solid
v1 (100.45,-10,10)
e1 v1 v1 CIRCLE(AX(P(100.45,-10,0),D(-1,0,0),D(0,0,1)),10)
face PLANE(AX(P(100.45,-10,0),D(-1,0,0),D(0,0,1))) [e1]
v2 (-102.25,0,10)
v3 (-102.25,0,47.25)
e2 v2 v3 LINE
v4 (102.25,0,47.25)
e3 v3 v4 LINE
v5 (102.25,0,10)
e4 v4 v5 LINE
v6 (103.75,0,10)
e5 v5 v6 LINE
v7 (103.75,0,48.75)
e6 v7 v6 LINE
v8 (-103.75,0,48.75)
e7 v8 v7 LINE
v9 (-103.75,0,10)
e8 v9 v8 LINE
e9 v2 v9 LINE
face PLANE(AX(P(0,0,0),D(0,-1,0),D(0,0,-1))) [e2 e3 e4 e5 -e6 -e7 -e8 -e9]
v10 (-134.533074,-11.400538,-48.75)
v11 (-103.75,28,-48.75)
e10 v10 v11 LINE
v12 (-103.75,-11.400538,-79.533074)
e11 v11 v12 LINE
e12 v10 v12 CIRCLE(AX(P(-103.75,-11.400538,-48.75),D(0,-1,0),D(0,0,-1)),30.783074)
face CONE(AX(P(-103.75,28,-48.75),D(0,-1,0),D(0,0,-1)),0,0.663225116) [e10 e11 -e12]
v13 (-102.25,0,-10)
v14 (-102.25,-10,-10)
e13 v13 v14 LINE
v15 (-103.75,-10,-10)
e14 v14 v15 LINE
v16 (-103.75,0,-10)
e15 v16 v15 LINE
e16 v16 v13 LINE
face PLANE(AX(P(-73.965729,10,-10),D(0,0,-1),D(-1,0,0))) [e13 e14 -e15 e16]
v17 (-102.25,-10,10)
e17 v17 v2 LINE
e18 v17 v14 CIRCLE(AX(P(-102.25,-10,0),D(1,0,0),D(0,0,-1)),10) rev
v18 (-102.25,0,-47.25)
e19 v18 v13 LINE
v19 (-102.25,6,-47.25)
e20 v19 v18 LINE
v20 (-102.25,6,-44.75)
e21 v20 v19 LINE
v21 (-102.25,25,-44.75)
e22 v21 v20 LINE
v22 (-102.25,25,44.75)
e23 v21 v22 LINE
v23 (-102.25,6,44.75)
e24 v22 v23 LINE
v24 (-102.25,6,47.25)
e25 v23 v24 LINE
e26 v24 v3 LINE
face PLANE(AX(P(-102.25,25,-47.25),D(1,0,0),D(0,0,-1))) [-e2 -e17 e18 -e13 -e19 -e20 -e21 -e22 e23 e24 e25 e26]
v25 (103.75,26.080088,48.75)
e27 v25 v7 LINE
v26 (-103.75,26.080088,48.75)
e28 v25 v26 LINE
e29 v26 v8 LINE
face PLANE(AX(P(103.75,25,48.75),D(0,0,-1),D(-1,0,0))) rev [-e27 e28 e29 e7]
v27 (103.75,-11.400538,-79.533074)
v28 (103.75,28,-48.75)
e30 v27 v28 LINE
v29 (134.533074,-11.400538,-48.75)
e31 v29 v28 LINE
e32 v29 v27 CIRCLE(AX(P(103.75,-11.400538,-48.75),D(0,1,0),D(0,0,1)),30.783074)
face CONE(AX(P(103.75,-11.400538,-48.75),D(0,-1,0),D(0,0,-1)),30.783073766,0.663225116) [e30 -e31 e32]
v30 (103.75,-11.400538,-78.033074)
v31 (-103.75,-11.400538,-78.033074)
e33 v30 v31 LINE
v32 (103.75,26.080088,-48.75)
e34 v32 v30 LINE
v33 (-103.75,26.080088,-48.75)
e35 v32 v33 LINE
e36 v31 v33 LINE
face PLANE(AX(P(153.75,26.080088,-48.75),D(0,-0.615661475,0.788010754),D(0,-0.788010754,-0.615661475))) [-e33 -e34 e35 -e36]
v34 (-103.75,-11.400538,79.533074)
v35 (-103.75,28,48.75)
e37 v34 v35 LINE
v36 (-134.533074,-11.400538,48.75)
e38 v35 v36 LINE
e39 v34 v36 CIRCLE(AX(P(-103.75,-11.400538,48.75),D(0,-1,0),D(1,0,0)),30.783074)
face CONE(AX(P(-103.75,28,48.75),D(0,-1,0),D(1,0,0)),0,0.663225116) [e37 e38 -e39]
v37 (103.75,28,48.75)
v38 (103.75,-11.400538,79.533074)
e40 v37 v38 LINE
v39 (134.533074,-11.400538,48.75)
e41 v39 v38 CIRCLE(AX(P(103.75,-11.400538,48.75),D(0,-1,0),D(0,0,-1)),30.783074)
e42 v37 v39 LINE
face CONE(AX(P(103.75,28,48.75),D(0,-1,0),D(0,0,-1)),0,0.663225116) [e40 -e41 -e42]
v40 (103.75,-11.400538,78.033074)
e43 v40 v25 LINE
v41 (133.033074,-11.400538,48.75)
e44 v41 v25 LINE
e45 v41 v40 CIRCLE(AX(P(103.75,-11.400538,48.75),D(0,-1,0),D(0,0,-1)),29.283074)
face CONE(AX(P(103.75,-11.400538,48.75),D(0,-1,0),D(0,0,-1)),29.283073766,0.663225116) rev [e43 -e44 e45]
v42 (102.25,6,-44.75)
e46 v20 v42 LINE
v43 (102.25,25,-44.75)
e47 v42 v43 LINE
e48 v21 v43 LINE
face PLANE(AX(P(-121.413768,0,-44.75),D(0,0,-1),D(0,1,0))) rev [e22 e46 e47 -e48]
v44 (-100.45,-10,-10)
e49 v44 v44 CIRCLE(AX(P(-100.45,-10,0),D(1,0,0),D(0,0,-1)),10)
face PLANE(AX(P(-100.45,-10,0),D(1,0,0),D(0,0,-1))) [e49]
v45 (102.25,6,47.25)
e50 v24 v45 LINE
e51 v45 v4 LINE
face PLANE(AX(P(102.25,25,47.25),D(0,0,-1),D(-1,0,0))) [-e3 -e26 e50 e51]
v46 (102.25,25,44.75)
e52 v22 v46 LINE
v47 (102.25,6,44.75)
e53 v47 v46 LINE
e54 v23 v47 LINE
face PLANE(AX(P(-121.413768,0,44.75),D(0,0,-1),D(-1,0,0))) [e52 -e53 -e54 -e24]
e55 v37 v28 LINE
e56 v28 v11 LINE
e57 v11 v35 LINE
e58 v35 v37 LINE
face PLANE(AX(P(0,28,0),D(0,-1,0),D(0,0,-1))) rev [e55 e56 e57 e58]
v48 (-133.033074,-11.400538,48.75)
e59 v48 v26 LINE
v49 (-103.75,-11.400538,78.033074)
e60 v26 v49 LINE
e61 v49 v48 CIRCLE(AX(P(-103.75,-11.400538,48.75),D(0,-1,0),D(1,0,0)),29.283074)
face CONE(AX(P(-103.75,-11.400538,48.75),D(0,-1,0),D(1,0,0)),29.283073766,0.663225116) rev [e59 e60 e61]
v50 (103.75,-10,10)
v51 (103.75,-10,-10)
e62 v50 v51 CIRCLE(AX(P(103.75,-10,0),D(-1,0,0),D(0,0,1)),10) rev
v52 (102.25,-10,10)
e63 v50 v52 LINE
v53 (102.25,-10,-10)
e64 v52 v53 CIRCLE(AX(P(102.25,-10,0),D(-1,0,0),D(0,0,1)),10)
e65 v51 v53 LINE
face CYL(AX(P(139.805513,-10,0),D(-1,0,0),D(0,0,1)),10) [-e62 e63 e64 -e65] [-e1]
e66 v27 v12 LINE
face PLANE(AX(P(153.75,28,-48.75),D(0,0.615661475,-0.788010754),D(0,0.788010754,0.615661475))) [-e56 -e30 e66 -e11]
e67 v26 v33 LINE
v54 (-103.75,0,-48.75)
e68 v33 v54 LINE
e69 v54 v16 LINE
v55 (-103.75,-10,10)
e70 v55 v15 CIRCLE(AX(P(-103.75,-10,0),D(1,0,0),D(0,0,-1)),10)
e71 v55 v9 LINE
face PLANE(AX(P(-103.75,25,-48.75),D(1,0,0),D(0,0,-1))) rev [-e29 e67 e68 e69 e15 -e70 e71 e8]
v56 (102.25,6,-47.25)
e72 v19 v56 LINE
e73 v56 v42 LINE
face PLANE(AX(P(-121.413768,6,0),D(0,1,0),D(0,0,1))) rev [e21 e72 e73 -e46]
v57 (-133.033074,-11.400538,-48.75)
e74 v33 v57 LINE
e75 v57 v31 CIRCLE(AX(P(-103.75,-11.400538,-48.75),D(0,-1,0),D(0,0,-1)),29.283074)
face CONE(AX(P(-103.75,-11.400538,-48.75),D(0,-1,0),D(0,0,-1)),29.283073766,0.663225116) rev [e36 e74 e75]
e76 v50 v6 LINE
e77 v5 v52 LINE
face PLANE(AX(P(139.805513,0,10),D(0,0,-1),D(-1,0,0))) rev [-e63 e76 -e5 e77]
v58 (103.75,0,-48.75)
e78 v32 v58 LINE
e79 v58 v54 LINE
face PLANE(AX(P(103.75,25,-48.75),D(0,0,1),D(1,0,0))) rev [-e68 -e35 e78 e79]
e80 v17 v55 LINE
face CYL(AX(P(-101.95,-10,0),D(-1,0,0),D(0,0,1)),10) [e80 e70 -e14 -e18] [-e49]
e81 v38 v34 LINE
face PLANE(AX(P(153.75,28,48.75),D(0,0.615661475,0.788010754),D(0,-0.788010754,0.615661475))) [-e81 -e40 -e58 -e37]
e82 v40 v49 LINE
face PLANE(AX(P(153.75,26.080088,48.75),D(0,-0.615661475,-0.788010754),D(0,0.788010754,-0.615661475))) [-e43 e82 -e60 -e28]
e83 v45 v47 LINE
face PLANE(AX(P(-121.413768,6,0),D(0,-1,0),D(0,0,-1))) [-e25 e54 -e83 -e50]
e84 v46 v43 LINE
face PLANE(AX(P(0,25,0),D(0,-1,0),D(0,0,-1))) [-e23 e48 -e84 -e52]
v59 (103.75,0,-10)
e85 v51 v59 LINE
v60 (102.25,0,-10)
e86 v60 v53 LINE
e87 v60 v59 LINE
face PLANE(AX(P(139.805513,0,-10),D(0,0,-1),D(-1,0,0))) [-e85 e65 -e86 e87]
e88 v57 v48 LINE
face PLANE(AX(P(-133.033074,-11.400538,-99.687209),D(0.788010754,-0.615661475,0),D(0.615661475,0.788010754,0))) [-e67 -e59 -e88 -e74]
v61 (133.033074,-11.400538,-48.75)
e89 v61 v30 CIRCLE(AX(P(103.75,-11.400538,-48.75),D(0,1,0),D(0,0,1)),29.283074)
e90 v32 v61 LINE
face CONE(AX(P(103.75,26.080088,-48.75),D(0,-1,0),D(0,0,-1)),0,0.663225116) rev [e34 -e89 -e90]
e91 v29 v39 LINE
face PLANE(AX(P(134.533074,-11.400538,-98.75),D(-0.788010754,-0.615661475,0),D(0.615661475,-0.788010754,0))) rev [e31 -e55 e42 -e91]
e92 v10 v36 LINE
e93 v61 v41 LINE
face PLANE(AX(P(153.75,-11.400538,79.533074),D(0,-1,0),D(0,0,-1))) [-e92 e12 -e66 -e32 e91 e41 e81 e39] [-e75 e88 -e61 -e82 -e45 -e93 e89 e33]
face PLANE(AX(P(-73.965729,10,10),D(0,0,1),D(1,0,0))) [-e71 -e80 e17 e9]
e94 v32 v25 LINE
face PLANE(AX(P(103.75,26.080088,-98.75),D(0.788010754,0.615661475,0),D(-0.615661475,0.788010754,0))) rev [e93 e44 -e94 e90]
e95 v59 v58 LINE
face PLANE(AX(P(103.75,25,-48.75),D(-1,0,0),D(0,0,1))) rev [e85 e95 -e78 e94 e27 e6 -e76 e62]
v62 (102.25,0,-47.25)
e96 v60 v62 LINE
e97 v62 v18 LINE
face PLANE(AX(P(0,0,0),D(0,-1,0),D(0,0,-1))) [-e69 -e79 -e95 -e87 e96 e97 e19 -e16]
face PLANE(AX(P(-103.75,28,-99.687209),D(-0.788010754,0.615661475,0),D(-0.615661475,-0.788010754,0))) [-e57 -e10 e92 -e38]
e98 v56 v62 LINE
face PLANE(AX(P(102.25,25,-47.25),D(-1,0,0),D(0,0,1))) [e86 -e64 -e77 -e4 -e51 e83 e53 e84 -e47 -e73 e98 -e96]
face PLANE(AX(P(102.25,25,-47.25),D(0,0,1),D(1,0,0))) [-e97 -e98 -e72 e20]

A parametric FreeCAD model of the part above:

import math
import FreeCAD as App
import Part
import Sketcher

V = App.Vector
Q = App.Units.Quantity

doc = App.newDocument("Part")
params = doc.addObject("Spreadsheet::Sheet", "Params")
for row, (alias, value) in enumerate([
    ("sketch1_width", "207.5 mm"),
    ("sketch1_width2", "204.5 mm"),
    ("sketch1_height", "97.5 mm"),
    ("sketch1_height2", "94.5 mm"),
    ("pad1_length", "25 mm"),
    ("sketch2_width", "207.5 mm"),
    ("sketch2_height", "97.5 mm"),
    ("pad2_length", "3 mm"),
    ("sketch3_length", "50 mm"),
    ("sketch3_height", "1.5 mm"),
    ("pad3_length", "207.5 mm"),
    ("sketch4_length", "50 mm"),
    ("sketch4_width", "1.5 mm"),
    ("pad4_length", "97.5 mm"),
    ("sketch5_length", "50 mm"),
    ("sketch5_width", "1.5 mm"),
    ("revolution_angle", "90 deg"),
    ("sketch6_length", "50 mm"),
    ("sketch6_height", "1.5 mm"),
    ("revolution2_angle", "90 deg"),
    ("sketch7_length", "50 mm"),
    ("sketch7_height", "1.5 mm"),
    ("revolution3_angle", "90 deg"),
    ("sketch8_length", "50 mm"),
    ("sketch8_height", "1.5 mm"),
    ("revolution4_angle", "90 deg"),
    ("sketch9_length", "50 mm"),
    ("sketch9_width", "1.5 mm"),
    ("pad5_length", "97.5 mm"),
    ("sketch10_width", "19 mm"),
    ("sketch10_height", "2.5 mm"),
    ("pad6_length", "204.5 mm"),
    ("sketch11_width", "19 mm"),
    ("sketch11_height", "2.5 mm"),
    ("pad7_length", "204.5 mm"),
    ("sketch12_diameter", "20 mm"),
    ("pad8_length", "0.3 mm"),
    ("sketch13_diameter", "20 mm"),
    ("pad9_length", "1.5 mm"),
    ("sketch14_width", "20 mm"),
    ("pad10_length", "1.5 mm"),
    ("sketch15_radius", "10 mm"),
    ("pad11_length", "1.5 mm"),
    ("sketch16_diameter", "20 mm"),
    ("pad12_length", "0.3 mm"),
    ("sketch17_diameter", "20 mm"),
    ("pad13_length", "1.5 mm"),
    ("sketch18_diameter", "20 mm"),
    ("pad14_length", "1.5 mm"),
], start=1):
    params.set(f"A{row}", alias)
    params.set(f"B{row}", "=" + value)
    params.setAlias(f"B{row}", alias)

body = doc.addObject("PartDesign::Body", "Body")

sketch1 = doc.addObject("Sketcher::SketchObject", "Sketch")
body.addObject(sketch1)
sketch1.AttachmentSupport = (doc.XZ_Plane, [""])
sketch1.MapMode = "FlatFace"
sketch1.addGeometry([
    Part.LineSegment(V(-104, -49, 0), V(-104, 49, 0)),
    Part.LineSegment(V(-104, 49, 0), V(104, 49, 0)),
    Part.LineSegment(V(104, 49, 0), V(104, -49, 0)),
    Part.LineSegment(V(104, -49, 0), V(-104, -49, 0)),
    Part.LineSegment(V(102, 47, 0), V(-102, 47, 0)),
    Part.LineSegment(V(-102, 47, 0), V(-102, -47, 0)),
    Part.LineSegment(V(-102, -47, 0), V(102, -47, 0)),
    Part.LineSegment(V(102, -47, 0), V(102, 47, 0)),
], False)
sketch1.addConstraint([
    Sketcher.Constraint("Coincident", 0, 2, 1, 1),
    Sketcher.Constraint("Coincident", 1, 2, 2, 1),
    Sketcher.Constraint("Coincident", 2, 2, 3, 1),
    Sketcher.Constraint("Coincident", 3, 2, 0, 1),
    Sketcher.Constraint("Coincident", 4, 2, 5, 1),
    Sketcher.Constraint("Coincident", 5, 2, 6, 1),
    Sketcher.Constraint("Coincident", 6, 2, 7, 1),
    Sketcher.Constraint("Coincident", 7, 2, 4, 1),
    Sketcher.Constraint("Vertical", 0),
    Sketcher.Constraint("Horizontal", 1),
    Sketcher.Constraint("Vertical", 2),
    Sketcher.Constraint("Horizontal", 3),
    Sketcher.Constraint("Horizontal", 4),
    Sketcher.Constraint("Vertical", 5),
    Sketcher.Constraint("Horizontal", 6),
    Sketcher.Constraint("Vertical", 7),
    Sketcher.Constraint("Symmetric", 0, 2, 2, 2, -1, 1),
    Sketcher.Constraint("Symmetric", 4, 2, 6, 2, -1, 1),
    Sketcher.Constraint("DistanceX", 1, 1, 1, 2, Q("207.5 mm")),
    Sketcher.Constraint("DistanceX", 4, 2, 4, 1, Q("204.5 mm")),
    Sketcher.Constraint("DistanceY", 0, 1, 0, 2, Q("97.5 mm")),
    Sketcher.Constraint("DistanceY", 5, 2, 5, 1, Q("94.5 mm")),
])
sketch1.setExpression("Constraints[18]", "Params.sketch1_width")
sketch1.setExpression("Constraints[19]", "Params.sketch1_width2")
sketch1.setExpression("Constraints[20]", "Params.sketch1_height")
sketch1.setExpression("Constraints[21]", "Params.sketch1_height2")
pad1 = doc.addObject("PartDesign::Pad", "Pad")
body.addObject(pad1)
pad1.Profile = sketch1
pad1.setExpression("Length", "Params.pad1_length")
pad1.Reversed = True

sketch2 = doc.addObject("Sketcher::SketchObject", "Sketch001")
body.addObject(sketch2)
sketch2.AttachmentSupport = (doc.XZ_Plane, [""])
sketch2.MapMode = "FlatFace"
sketch2.AttachmentOffset = App.Placement(V(0, 0, -25), App.Rotation())
sketch2.addGeometry([
    Part.LineSegment(V(-104, -49, 0), V(-104, 49, 0)),
    Part.LineSegment(V(-104, 49, 0), V(104, 49, 0)),
    Part.LineSegment(V(104, 49, 0), V(104, -49, 0)),
    Part.LineSegment(V(104, -49, 0), V(-104, -49, 0)),
], False)
sketch2.addConstraint([
    Sketcher.Constraint("Coincident", 0, 2, 1, 1),
    Sketcher.Constraint("Coincident", 1, 2, 2, 1),
    Sketcher.Constraint("Coincident", 2, 2, 3, 1),
    Sketcher.Constraint("Coincident", 3, 2, 0, 1),
    Sketcher.Constraint("Vertical", 0),
    Sketcher.Constraint("Horizontal", 1),
    Sketcher.Constraint("Vertical", 2),
    Sketcher.Constraint("Horizontal", 3),
    Sketcher.Constraint("Symmetric", 0, 2, 2, 2, -1, 1),
    Sketcher.Constraint("DistanceX", 1, 1, 1, 2, Q("207.5 mm")),
    Sketcher.Constraint("DistanceY", 0, 1, 0, 2, Q("97.5 mm")),
])
sketch2.setExpression("Constraints[9]", "Params.sketch2_width")
sketch2.setExpression("Constraints[10]", "Params.sketch2_height")
pad2 = doc.addObject("PartDesign::Pad", "Pad001")
body.addObject(pad2)
pad2.Profile = sketch2
pad2.setExpression("Length", "Params.pad2_length")
pad2.Reversed = True

sketch3 = doc.addObject("Sketcher::SketchObject", "Sketch002")
body.addObject(sketch3)
sketch3.AttachmentSupport = (doc.YZ_Plane, [""])
sketch3.MapMode = "FlatFace"
sketch3.AttachmentOffset = App.Placement(V(0, 0, -103.75), App.Rotation())
sketch3.addGeometry([
    Part.LineSegment(V(-11.4, 79.5, 0), V(28, 48.8, 0)),
    Part.LineSegment(V(28, 48.8, 0), V(26.1, 48.8, 0)),
    Part.LineSegment(V(26.1, 48.8, 0), V(-11.4, 78, 0)),
    Part.LineSegment(V(-11.4, 78, 0), V(-11.4, 79.5, 0)),
    Part.LineSegment(V(28, -48.8, 0), V(-11.4, -79.5, 0)),
    Part.LineSegment(V(-11.4, -79.5, 0), V(-11.4, -78, 0)),
    Part.LineSegment(V(-11.4, -78, 0), V(26.1, -48.8, 0)),
    Part.LineSegment(V(26.1, -48.8, 0), V(28, -48.8, 0)),
], False)
sketch3.addConstraint([
    Sketcher.Constraint("Coincident", 0, 2, 1, 1),
    Sketcher.Constraint("Coincident", 1, 2, 2, 1),
    Sketcher.Constraint("Coincident", 2, 2, 3, 1),
    Sketcher.Constraint("Coincident", 3, 2, 0, 1),
    Sketcher.Constraint("Coincident", 4, 2, 5, 1),
    Sketcher.Constraint("Coincident", 5, 2, 6, 1),
    Sketcher.Constraint("Coincident", 6, 2, 7, 1),
    Sketcher.Constraint("Coincident", 7, 2, 4, 1),
    Sketcher.Constraint("Horizontal", 1),
    Sketcher.Constraint("Vertical", 3),
    Sketcher.Constraint("Vertical", 5),
    Sketcher.Constraint("Horizontal", 7),
    Sketcher.Constraint("Symmetric", 3, 2, 4, 2, -1),
    Sketcher.Constraint("Symmetric", 1, 2, 6, 2, -1),
    Sketcher.Constraint("Parallel", 0, 2),
    Sketcher.Constraint("Parallel", 4, 6),
    Sketcher.Constraint("Vertical", 0, 2, 7, 2),
    Sketcher.Constraint("Angle", 0, Q("-38 deg")),
    Sketcher.Constraint("Distance", 0, Q("50 mm")),
    Sketcher.Constraint("DistanceY", 3, 1, 3, 2, Q("1.5 mm")),
    Sketcher.Constraint("DistanceX", -1, 1, 0, 2, Q("28 mm")),
    Sketcher.Constraint("DistanceY", 6, 2, 1, 2, Q("97.5 mm")),
])
sketch3.setExpression("Constraints[18]", "Params.sketch3_length")
sketch3.setExpression("Constraints[19]", "Params.sketch3_height")
pad3 = doc.addObject("PartDesign::Pad", "Pad002")
body.addObject(pad3)
pad3.Profile = sketch3
pad3.setExpression("Length", "Params.pad3_length")

sketch4 = doc.addObject("Sketcher::SketchObject", "Sketch003")
body.addObject(sketch4)
sketch4.AttachmentSupport = (doc.XY_Plane, [""])
sketch4.MapMode = "FlatFace"
sketch4.AttachmentOffset = App.Placement(V(0, 0, 48.75), App.Rotation())
sketch4.addGeometry([
    Part.LineSegment(V(-103.8, 28, 0), V(-134.5, -11.4, 0)),
    Part.LineSegment(V(-134.5, -11.4, 0), V(-133, -11.4, 0)),
    Part.LineSegment(V(-133, -11.4, 0), V(-102.2, 28, 0)),
    Part.LineSegment(V(-102.2, 28, 0), V(-103.8, 28, 0)),
], False)
sketch4.addConstraint([
    Sketcher.Constraint("Coincident", 0, 2, 1, 1),
    Sketcher.Constraint("Coincident", 1, 2, 2, 1),
    Sketcher.Constraint("Coincident", 2, 2, 3, 1),
    Sketcher.Constraint("Coincident", 3, 2, 0, 1),
    Sketcher.Constraint("Horizontal", 1),
    Sketcher.Constraint("Horizontal", 3),
    Sketcher.Constraint("Parallel", 0, 2),
    Sketcher.Constraint("Angle", 0, Q("-128 deg")),
    Sketcher.Constraint("Distance", 0, Q("50 mm")),
    Sketcher.Constraint("DistanceX", 1, 1, 1, 2, Q("1.5 mm")),
    Sketcher.Constraint("DistanceY", -1, 1, 2, 2, Q("28 mm")),
    Sketcher.Constraint("DistanceX", 2, 2, -1, 1, Q("102.25 mm")),
])
sketch4.setExpression("Constraints[8]", "Params.sketch4_length")
sketch4.setExpression("Constraints[9]", "Params.sketch4_width")
pad4 = doc.addObject("PartDesign::Pad", "Pad003")
body.addObject(pad4)
pad4.Profile = sketch4
pad4.setExpression("Length", "Params.pad4_length")
pad4.Reversed = True

sketch5 = doc.addObject("Sketcher::SketchObject", "Sketch004")
body.addObject(sketch5)
sketch5.AttachmentSupport = (doc.XY_Plane, [""])
sketch5.MapMode = "FlatFace"
sketch5.AttachmentOffset = App.Placement(V(0, 0, 48.75), App.Rotation())
sketch5.addGeometry([
    Part.LineSegment(V(-103.8, 28, 0), V(-134.5, -11.4, 0)),
    Part.LineSegment(V(-134.5, -11.4, 0), V(-133, -11.4, 0)),
    Part.LineSegment(V(-133, -11.4, 0), V(-103.8, 26.1, 0)),
    Part.LineSegment(V(-103.8, 26.1, 0), V(-103.8, 28, 0)),
], False)
sketch5.addGeometry(Part.LineSegment(V(-103.8, -11.4, 0), V(-103.8, 28, 0)), True)
sketch5.addConstraint([
    Sketcher.Constraint("Coincident", 0, 2, 1, 1),
    Sketcher.Constraint("Coincident", 1, 2, 2, 1),
    Sketcher.Constraint("Coincident", 2, 2, 3, 1),
    Sketcher.Constraint("Coincident", 3, 2, 0, 1),
    Sketcher.Constraint("Horizontal", 1),
    Sketcher.Constraint("Vertical", 3),
    Sketcher.Constraint("Vertical", 4),
    Sketcher.Constraint("Coincident", 4, 2, 3, 2),
    Sketcher.Constraint("Parallel", 0, 2),
    Sketcher.Constraint("Horizontal", 1, 2, 4, 1),
    Sketcher.Constraint("Angle", 0, Q("-128 deg")),
    Sketcher.Constraint("Distance", 0, Q("50 mm")),
    Sketcher.Constraint("DistanceX", 1, 1, 1, 2, Q("1.5 mm")),
    Sketcher.Constraint("DistanceY", -1, 1, 3, 2, Q("28 mm")),
    Sketcher.Constraint("DistanceX", 2, 2, -1, 1, Q("103.75 mm")),
])
sketch5.setExpression("Constraints[11]", "Params.sketch5_length")
sketch5.setExpression("Constraints[12]", "Params.sketch5_width")
revolution = doc.addObject("PartDesign::Revolution", "Revolution")
body.addObject(revolution)
revolution.Profile = sketch5
revolution.ReferenceAxis = (sketch5, ["Axis0"])
revolution.setExpression("Angle", "Params.revolution_angle")

sketch6 = doc.addObject("Sketcher::SketchObject", "Sketch005")
body.addObject(sketch6)
sketch6.AttachmentSupport = (doc.YZ_Plane, [""])
sketch6.MapMode = "FlatFace"
sketch6.AttachmentOffset = App.Placement(V(0, 0, -103.75), App.Rotation())
sketch6.addGeometry([
    Part.LineSegment(V(28, -48.8, 0), V(-11.4, -79.5, 0)),
    Part.LineSegment(V(-11.4, -79.5, 0), V(-11.4, -78, 0)),
    Part.LineSegment(V(-11.4, -78, 0), V(26.1, -48.8, 0)),
    Part.LineSegment(V(26.1, -48.8, 0), V(28, -48.8, 0)),
], False)
sketch6.addGeometry(Part.LineSegment(V(-11.4, -48.8, 0), V(28, -48.8, 0)), True)
sketch6.addConstraint([
    Sketcher.Constraint("Coincident", 0, 2, 1, 1),
    Sketcher.Constraint("Coincident", 1, 2, 2, 1),
    Sketcher.Constraint("Coincident", 2, 2, 3, 1),
    Sketcher.Constraint("Coincident", 3, 2, 0, 1),
    Sketcher.Constraint("Vertical", 1),
    Sketcher.Constraint("Horizontal", 3),
    Sketcher.Constraint("Horizontal", 4),
    Sketcher.Constraint("Coincident", 4, 2, 3, 2),
    Sketcher.Constraint("Parallel", 0, 2),
    Sketcher.Constraint("Vertical", 1, 2, 4, 1),
    Sketcher.Constraint("Angle", 0, Q("-142 deg")),
    Sketcher.Constraint("Distance", 0, Q("50 mm")),
    Sketcher.Constraint("DistanceY", 1, 1, 1, 2, Q("1.5 mm")),
    Sketcher.Constraint("DistanceX", -1, 1, 3, 2, Q("28 mm")),
    Sketcher.Constraint("DistanceY", 2, 2, -1, 1, Q("48.75 mm")),
])
sketch6.setExpression("Constraints[11]", "Params.sketch6_length")
sketch6.setExpression("Constraints[12]", "Params.sketch6_height")
revolution2 = doc.addObject("PartDesign::Revolution", "Revolution001")
body.addObject(revolution2)
revolution2.Profile = sketch6
revolution2.ReferenceAxis = (sketch6, ["Axis0"])
revolution2.setExpression("Angle", "Params.revolution2_angle")

sketch7 = doc.addObject("Sketcher::SketchObject", "Sketch006")
body.addObject(sketch7)
sketch7.AttachmentSupport = (doc.YZ_Plane, [""])
sketch7.MapMode = "FlatFace"
sketch7.AttachmentOffset = App.Placement(V(0, 0, 103.75), App.Rotation())
sketch7.addGeometry([
    Part.LineSegment(V(28, -48.8, 0), V(26.1, -48.8, 0)),
    Part.LineSegment(V(26.1, -48.8, 0), V(-11.4, -78, 0)),
    Part.LineSegment(V(-11.4, -78, 0), V(-11.4, -79.5, 0)),
    Part.LineSegment(V(-11.4, -79.5, 0), V(28, -48.8, 0)),
], False)
sketch7.addGeometry(Part.LineSegment(V(28, -48.8, 0), V(-11.4, -48.8, 0)), True)
sketch7.addConstraint([
    Sketcher.Constraint("Coincident", 0, 2, 1, 1),
    Sketcher.Constraint("Coincident", 1, 2, 2, 1),
    Sketcher.Constraint("Coincident", 2, 2, 3, 1),
    Sketcher.Constraint("Coincident", 3, 2, 0, 1),
    Sketcher.Constraint("Horizontal", 0),
    Sketcher.Constraint("Vertical", 2),
    Sketcher.Constraint("Horizontal", 4),
    Sketcher.Constraint("Coincident", 4, 1, 3, 2),
    Sketcher.Constraint("Parallel", 1, 3),
    Sketcher.Constraint("Vertical", 2, 2, 4, 2),
    Sketcher.Constraint("Angle", 1, Q("-142 deg")),
    Sketcher.Constraint("Distance", 3, Q("50 mm")),
    Sketcher.Constraint("DistanceY", 2, 2, 2, 1, Q("1.5 mm")),
    Sketcher.Constraint("DistanceX", -1, 1, 3, 2, Q("28 mm")),
    Sketcher.Constraint("DistanceY", 0, 2, -1, 1, Q("48.75 mm")),
])
sketch7.setExpression("Constraints[11]", "Params.sketch7_length")
sketch7.setExpression("Constraints[12]", "Params.sketch7_height")
revolution3 = doc.addObject("PartDesign::Revolution", "Revolution002")
body.addObject(revolution3)
revolution3.Profile = sketch7
revolution3.ReferenceAxis = (sketch7, ["Axis0"])
revolution3.setExpression("Angle", "Params.revolution3_angle")

sketch8 = doc.addObject("Sketcher::SketchObject", "Sketch007")
body.addObject(sketch8)
sketch8.AttachmentSupport = (doc.YZ_Plane, [""])
sketch8.MapMode = "FlatFace"
sketch8.AttachmentOffset = App.Placement(V(0, 0, 103.75), App.Rotation())
sketch8.addGeometry([
    Part.LineSegment(V(28, 48.8, 0), V(-11.4, 79.5, 0)),
    Part.LineSegment(V(-11.4, 79.5, 0), V(-11.4, 78, 0)),
    Part.LineSegment(V(-11.4, 78, 0), V(26.1, 48.8, 0)),
    Part.LineSegment(V(26.1, 48.8, 0), V(28, 48.8, 0)),
], False)
sketch8.addGeometry(Part.LineSegment(V(-11.4, 48.8, 0), V(28, 48.8, 0)), True)
sketch8.addConstraint([
    Sketcher.Constraint("Coincident", 0, 2, 1, 1),
    Sketcher.Constraint("Coincident", 1, 2, 2, 1),
    Sketcher.Constraint("Coincident", 2, 2, 3, 1),
    Sketcher.Constraint("Coincident", 3, 2, 0, 1),
    Sketcher.Constraint("Vertical", 1),
    Sketcher.Constraint("Horizontal", 3),
    Sketcher.Constraint("Horizontal", 4),
    Sketcher.Constraint("Coincident", 4, 2, 3, 2),
    Sketcher.Constraint("Parallel", 0, 2),
    Sketcher.Constraint("Vertical", 1, 2, 4, 1),
    Sketcher.Constraint("Angle", 0, Q("142 deg")),
    Sketcher.Constraint("Distance", 0, Q("50 mm")),
    Sketcher.Constraint("DistanceY", 1, 2, 1, 1, Q("1.5 mm")),
    Sketcher.Constraint("DistanceX", -1, 1, 3, 2, Q("28 mm")),
    Sketcher.Constraint("DistanceY", -1, 1, 2, 2, Q("48.75 mm")),
])
sketch8.setExpression("Constraints[11]", "Params.sketch8_length")
sketch8.setExpression("Constraints[12]", "Params.sketch8_height")
revolution4 = doc.addObject("PartDesign::Revolution", "Revolution003")
body.addObject(revolution4)
revolution4.Profile = sketch8
revolution4.ReferenceAxis = (sketch8, ["Axis0"])
revolution4.setExpression("Angle", "Params.revolution4_angle")

sketch9 = doc.addObject("Sketcher::SketchObject", "Sketch008")
body.addObject(sketch9)
sketch9.AttachmentSupport = (doc.XY_Plane, [""])
sketch9.MapMode = "FlatFace"
sketch9.AttachmentOffset = App.Placement(V(0, 0, 48.75), App.Rotation())
sketch9.addGeometry([
    Part.LineSegment(V(103.8, 26.1, 0), V(103.8, 28, 0)),
    Part.LineSegment(V(103.8, 28, 0), V(134.5, -11.4, 0)),
    Part.LineSegment(V(134.5, -11.4, 0), V(133, -11.4, 0)),
    Part.LineSegment(V(133, -11.4, 0), V(103.8, 26.1, 0)),
], False)
sketch9.addConstraint([
    Sketcher.Constraint("Coincident", 0, 2, 1, 1),
    Sketcher.Constraint("Coincident", 1, 2, 2, 1),
    Sketcher.Constraint("Coincident", 2, 2, 3, 1),
    Sketcher.Constraint("Coincident", 3, 2, 0, 1),
    Sketcher.Constraint("Vertical", 0),
    Sketcher.Constraint("Horizontal", 2),
    Sketcher.Constraint("Parallel", 1, 3),
    Sketcher.Constraint("Angle", 1, Q("-52 deg")),
    Sketcher.Constraint("Distance", 1, Q("50 mm")),
    Sketcher.Constraint("DistanceX", 2, 2, 2, 1, Q("1.5 mm")),
    Sketcher.Constraint("DistanceY", -1, 1, 0, 2, Q("28 mm")),
    Sketcher.Constraint("DistanceX", -1, 1, 0, 2, Q("103.75 mm")),
])
sketch9.setExpression("Constraints[8]", "Params.sketch9_length")
sketch9.setExpression("Constraints[9]", "Params.sketch9_width")
pad5 = doc.addObject("PartDesign::Pad", "Pad004")
body.addObject(pad5)
pad5.Profile = sketch9
pad5.setExpression("Length", "Params.pad5_length")
pad5.Reversed = True

sketch10 = doc.addObject("Sketcher::SketchObject", "Sketch009")
body.addObject(sketch10)
sketch10.AttachmentSupport = (doc.YZ_Plane, [""])
sketch10.MapMode = "FlatFace"
sketch10.AttachmentOffset = App.Placement(V(0, 0, 102.25), App.Rotation())
sketch10.addGeometry([
    Part.LineSegment(V(25, 44.8, 0), V(6, 44.8, 0)),
    Part.LineSegment(V(6, 44.8, 0), V(6, 47.2, 0)),
    Part.LineSegment(V(6, 47.2, 0), V(25, 47.2, 0)),
    Part.LineSegment(V(25, 47.2, 0), V(25, 44.8, 0)),
], False)
sketch10.addConstraint([
    Sketcher.Constraint("Coincident", 0, 2, 1, 1),
    Sketcher.Constraint("Coincident", 1, 2, 2, 1),
    Sketcher.Constraint("Coincident", 2, 2, 3, 1),
    Sketcher.Constraint("Coincident", 3, 2, 0, 1),
    Sketcher.Constraint("Horizontal", 0),
    Sketcher.Constraint("Vertical", 1),
    Sketcher.Constraint("Horizontal", 2),
    Sketcher.Constraint("Vertical", 3),
    Sketcher.Constraint("DistanceX", 0, 2, 0, 1, Q("19 mm")),
    Sketcher.Constraint("DistanceY", 1, 1, 1, 2, Q("2.5 mm")),
    Sketcher.Constraint("DistanceX", -1, 1, 0, 2, Q("6 mm")),
    Sketcher.Constraint("DistanceY", -1, 1, 0, 2, Q("44.75 mm")),
])
sketch10.setExpression("Constraints[8]", "Params.sketch10_width")
sketch10.setExpression("Constraints[9]", "Params.sketch10_height")
pad6 = doc.addObject("PartDesign::Pad", "Pad005")
body.addObject(pad6)
pad6.Profile = sketch10
pad6.setExpression("Length", "Params.pad6_length")
pad6.Reversed = True

sketch11 = doc.addObject("Sketcher::SketchObject", "Sketch010")
body.addObject(sketch11)
sketch11.AttachmentSupport = (doc.YZ_Plane, [""])
sketch11.MapMode = "FlatFace"
sketch11.AttachmentOffset = App.Placement(V(0, 0, 102.25), App.Rotation())
sketch11.addGeometry([
    Part.LineSegment(V(25, -47.2, 0), V(6, -47.2, 0)),
    Part.LineSegment(V(6, -47.2, 0), V(6, -44.8, 0)),
    Part.LineSegment(V(6, -44.8, 0), V(25, -44.8, 0)),
    Part.LineSegment(V(25, -44.8, 0), V(25, -47.2, 0)),
], False)
sketch11.addConstraint([
    Sketcher.Constraint("Coincident", 0, 2, 1, 1),
    Sketcher.Constraint("Coincident", 1, 2, 2, 1),
    Sketcher.Constraint("Coincident", 2, 2, 3, 1),
    Sketcher.Constraint("Coincident", 3, 2, 0, 1),
    Sketcher.Constraint("Horizontal", 0),
    Sketcher.Constraint("Vertical", 1),
    Sketcher.Constraint("Horizontal", 2),
    Sketcher.Constraint("Vertical", 3),
    Sketcher.Constraint("DistanceX", 0, 2, 0, 1, Q("19 mm")),
    Sketcher.Constraint("DistanceY", 1, 1, 1, 2, Q("2.5 mm")),
    Sketcher.Constraint("DistanceX", -1, 1, 0, 2, Q("6 mm")),
    Sketcher.Constraint("DistanceY", 0, 2, -1, 1, Q("47.25 mm")),
])
sketch11.setExpression("Constraints[8]", "Params.sketch11_width")
sketch11.setExpression("Constraints[9]", "Params.sketch11_height")
pad7 = doc.addObject("PartDesign::Pad", "Pad006")
body.addObject(pad7)
pad7.Profile = sketch11
pad7.setExpression("Length", "Params.pad7_length")
pad7.Reversed = True
body2 = doc.addObject("PartDesign::Body", "Body001")

sketch12 = doc.addObject("Sketcher::SketchObject", "Sketch011")
body2.addObject(sketch12)
sketch12.AttachmentSupport = (doc.getObject("YZ_Plane001"), [""])
sketch12.MapMode = "FlatFace"
sketch12.AttachmentOffset = App.Placement(V(0, 0, -102.25), App.Rotation())
sketch12.addGeometry(Part.Circle(V(-10, 0, 0), V(0, 0, 1), 10), False)
sketch12.addConstraint([
    Sketcher.Constraint("PointOnObject", 0, 3, -1),
    Sketcher.Constraint("Diameter", 0, Q("20 mm")),
    Sketcher.Constraint("DistanceX", 0, 3, -1, 1, Q("10 mm")),
])
sketch12.setExpression("Constraints[1]", "Params.sketch12_diameter")
pad8 = doc.addObject("PartDesign::Pad", "Pad007")
body2.addObject(pad8)
pad8.Profile = sketch12
pad8.setExpression("Length", "Params.pad8_length")

sketch13 = doc.addObject("Sketcher::SketchObject", "Sketch012")
body2.addObject(sketch13)
sketch13.AttachmentSupport = (doc.getObject("YZ_Plane001"), [""])
sketch13.MapMode = "FlatFace"
sketch13.AttachmentOffset = App.Placement(V(0, 0, -102.25), App.Rotation())
sketch13.addGeometry(Part.Circle(V(-10, 0, 0), V(0, 0, 1), 10), False)
sketch13.addConstraint([
    Sketcher.Constraint("PointOnObject", 0, 3, -1),
    Sketcher.Constraint("Diameter", 0, Q("20 mm")),
    Sketcher.Constraint("DistanceX", 0, 3, -1, 1, Q("10 mm")),
])
sketch13.setExpression("Constraints[1]", "Params.sketch13_diameter")
pad9 = doc.addObject("PartDesign::Pad", "Pad008")
body2.addObject(pad9)
pad9.Profile = sketch13
pad9.setExpression("Length", "Params.pad9_length")
pad9.Reversed = True
body.AllowCompound = True
doc.recompute()

boolean = doc.addObject("PartDesign::Boolean", "Boolean")
body.addObject(boolean)
boolean.Type = "Fuse"
boolean.addObjects([body2])

sketch14 = doc.addObject("Sketcher::SketchObject", "Sketch013")
body.addObject(sketch14)
sketch14.AttachmentSupport = (doc.YZ_Plane, [""])
sketch14.MapMode = "FlatFace"
sketch14.AttachmentOffset = App.Placement(V(0, 0, -103.75), App.Rotation())
sketch14.addGeometry([
    Part.LineSegment(V(10, -10, 0), V(-10, -10, 0)),
    Part.LineSegment(V(-10, -10, 0), V(-10, 10, 0)),
    Part.LineSegment(V(-10, 10, 0), V(10, 10, 0)),
    Part.LineSegment(V(10, 10, 0), V(10, -10, 0)),
], False)
sketch14.addConstraint([
    Sketcher.Constraint("Coincident", 0, 2, 1, 1),
    Sketcher.Constraint("Coincident", 1, 2, 2, 1),
    Sketcher.Constraint("Coincident", 2, 2, 3, 1),
    Sketcher.Constraint("Coincident", 3, 2, 0, 1),
    Sketcher.Constraint("Horizontal", 0),
    Sketcher.Constraint("Vertical", 1),
    Sketcher.Constraint("Horizontal", 2),
    Sketcher.Constraint("Vertical", 3),
    Sketcher.Constraint("Symmetric", 0, 2, 2, 2, -1, 1),
    Sketcher.Constraint("Equal", 2, 1),
    Sketcher.Constraint("DistanceX", 0, 2, 0, 1, Q("20 mm")),
])
sketch14.setExpression("Constraints[10]", "Params.sketch14_width")
pad10 = doc.addObject("PartDesign::Pad", "Pad009")
body.addObject(pad10)
pad10.Profile = sketch14
pad10.setExpression("Length", "Params.pad10_length")

sketch15 = doc.addObject("Sketcher::SketchObject", "Sketch014")
body.addObject(sketch15)
sketch15.AttachmentSupport = (doc.YZ_Plane, [""])
sketch15.MapMode = "FlatFace"
sketch15.AttachmentOffset = App.Placement(V(0, 0, 102.25), App.Rotation())
sketch15.addGeometry([
    Part.ArcOfCircle(Part.Circle(V(-10, 0, 0), V(0, 0, 1), 10), math.radians(90), math.radians(270)),
    Part.LineSegment(V(-10, 10, 0), V(10, 10, 0)),
    Part.LineSegment(V(10, 10, 0), V(10, -10, 0)),
    Part.LineSegment(V(10, -10, 0), V(-10, -10, 0)),
], False)
sketch15.addConstraint([
    Sketcher.Constraint("Tangent", 0, 1, 1, 1),
    Sketcher.Constraint("Coincident", 1, 2, 2, 1),
    Sketcher.Constraint("Coincident", 2, 2, 3, 1),
    Sketcher.Constraint("Tangent", 3, 2, 0, 2),
    Sketcher.Constraint("Horizontal", 1),
    Sketcher.Constraint("Vertical", 2),
    Sketcher.Constraint("Horizontal", 3),
    Sketcher.Constraint("Symmetric", 0, 1, 2, 2, -1, 1),
    Sketcher.Constraint("Equal", 3, 2),
    Sketcher.Constraint("Radius", 0, Q("10 mm")),
])
sketch15.setExpression("Constraints[9]", "Params.sketch15_radius")
pad11 = doc.addObject("PartDesign::Pad", "Pad010")
body.addObject(pad11)
pad11.Profile = sketch15
pad11.setExpression("Length", "Params.pad11_length")

sketch16 = doc.addObject("Sketcher::SketchObject", "Sketch015")
body.addObject(sketch16)
sketch16.AttachmentSupport = (doc.YZ_Plane, [""])
sketch16.MapMode = "FlatFace"
sketch16.AttachmentOffset = App.Placement(V(0, 0, 102.25), App.Rotation())
sketch16.addGeometry(Part.Circle(V(-10, 0, 0), V(0, 0, 1), 10), False)
sketch16.addConstraint([
    Sketcher.Constraint("PointOnObject", 0, 3, -1),
    Sketcher.Constraint("Diameter", 0, Q("20 mm")),
    Sketcher.Constraint("DistanceX", 0, 3, -1, 1, Q("10 mm")),
])
sketch16.setExpression("Constraints[1]", "Params.sketch16_diameter")
pad12 = doc.addObject("PartDesign::Pad", "Pad011")
body.addObject(pad12)
pad12.Profile = sketch16
pad12.setExpression("Length", "Params.pad12_length")
pad12.Reversed = True

sketch17 = doc.addObject("Sketcher::SketchObject", "Sketch016")
body.addObject(sketch17)
sketch17.AttachmentSupport = (doc.YZ_Plane, [""])
sketch17.MapMode = "FlatFace"
sketch17.AttachmentOffset = App.Placement(V(0, 0, 101.95), App.Rotation())
sketch17.addGeometry(Part.Circle(V(-10, 0, 0), V(0, 0, 1), 10), False)
sketch17.addConstraint([
    Sketcher.Constraint("PointOnObject", 0, 3, -1),
    Sketcher.Constraint("Diameter", 0, Q("20 mm")),
    Sketcher.Constraint("DistanceX", 0, 3, -1, 1, Q("10 mm")),
])
sketch17.setExpression("Constraints[1]", "Params.sketch17_diameter")
pad13 = doc.addObject("PartDesign::Pad", "Pad012")
body.addObject(pad13)
pad13.Profile = sketch17
pad13.setExpression("Length", "Params.pad13_length")
pad13.Reversed = True

sketch18 = doc.addObject("Sketcher::SketchObject", "Sketch017")
body.addObject(sketch18)
sketch18.AttachmentSupport = (doc.YZ_Plane, [""])
sketch18.MapMode = "FlatFace"
sketch18.AttachmentOffset = App.Placement(V(0, 0, -101.95), App.Rotation())
sketch18.addGeometry(Part.Circle(V(-10, 0, 0), V(0, 0, 1), 10), False)
sketch18.addConstraint([
    Sketcher.Constraint("PointOnObject", 0, 3, -1),
    Sketcher.Constraint("Diameter", 0, Q("20 mm")),
    Sketcher.Constraint("DistanceX", 0, 3, -1, 1, Q("10 mm")),
])
sketch18.setExpression("Constraints[1]", "Params.sketch18_diameter")
pad14 = doc.addObject("PartDesign::Pad", "Pad013")
body.addObject(pad14)
pad14.Profile = sketch18
pad14.setExpression("Length", "Params.pad14_length")

doc.recompute()
